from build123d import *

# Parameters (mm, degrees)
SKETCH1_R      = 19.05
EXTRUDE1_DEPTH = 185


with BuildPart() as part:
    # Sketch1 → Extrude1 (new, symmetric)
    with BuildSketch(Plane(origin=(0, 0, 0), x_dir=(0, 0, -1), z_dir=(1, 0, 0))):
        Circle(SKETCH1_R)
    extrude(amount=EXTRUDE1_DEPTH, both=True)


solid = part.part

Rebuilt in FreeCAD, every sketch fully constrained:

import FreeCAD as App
import Part
import Sketcher

V = App.Vector
Q = App.Units.Quantity

doc = App.newDocument("Part")
body = doc.addObject("PartDesign::Body", "Body")

# Sketch on YZ plane
sketch1 = body.newObject("Sketcher::SketchObject", "Sketch")
sketch1.AttachmentSupport = (doc.getObject("YZ_Plane"), [""])
sketch1.MapMode = "FlatFace"
sketch1.addGeometry(Part.Circle(V(0, 0, 0), V(0, 0, 1), 19), False)
sketch1.addConstraint(Sketcher.Constraint("Coincident", 0, 3, -1, 1))
sketch1.addConstraint(Sketcher.Constraint("Diameter", 0, Q("38.1 mm")))
pad1 = body.newObject("PartDesign::Pad", "Pad")
pad1.Profile = sketch1
pad1.Length = 370
pad1.Midplane = True

doc.recompute()
